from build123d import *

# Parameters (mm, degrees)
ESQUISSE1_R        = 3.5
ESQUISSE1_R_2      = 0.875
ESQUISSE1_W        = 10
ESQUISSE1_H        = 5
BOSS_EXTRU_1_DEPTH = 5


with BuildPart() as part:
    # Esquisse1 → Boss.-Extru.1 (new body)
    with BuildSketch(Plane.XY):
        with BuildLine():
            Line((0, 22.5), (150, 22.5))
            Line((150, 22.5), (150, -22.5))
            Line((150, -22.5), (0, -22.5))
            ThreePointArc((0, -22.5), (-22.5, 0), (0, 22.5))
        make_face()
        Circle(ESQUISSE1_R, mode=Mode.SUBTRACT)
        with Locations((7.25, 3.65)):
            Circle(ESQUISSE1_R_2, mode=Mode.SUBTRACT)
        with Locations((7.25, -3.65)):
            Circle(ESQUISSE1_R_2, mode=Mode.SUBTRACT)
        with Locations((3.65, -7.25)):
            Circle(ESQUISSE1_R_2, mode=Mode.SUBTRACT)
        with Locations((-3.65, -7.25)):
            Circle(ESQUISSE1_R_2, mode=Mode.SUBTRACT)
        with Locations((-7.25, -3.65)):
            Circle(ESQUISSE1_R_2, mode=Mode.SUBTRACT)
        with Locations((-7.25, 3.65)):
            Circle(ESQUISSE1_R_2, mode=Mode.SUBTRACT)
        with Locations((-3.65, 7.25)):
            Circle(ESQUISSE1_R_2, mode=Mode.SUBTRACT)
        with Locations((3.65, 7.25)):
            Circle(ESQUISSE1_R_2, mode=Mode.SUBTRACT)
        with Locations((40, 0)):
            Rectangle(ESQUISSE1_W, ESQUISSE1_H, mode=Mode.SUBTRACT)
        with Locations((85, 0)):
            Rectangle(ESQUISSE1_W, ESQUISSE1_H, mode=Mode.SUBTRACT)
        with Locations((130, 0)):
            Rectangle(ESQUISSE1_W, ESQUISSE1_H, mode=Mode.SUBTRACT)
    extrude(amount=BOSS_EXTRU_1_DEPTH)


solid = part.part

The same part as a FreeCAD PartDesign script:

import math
import FreeCAD as App
import Part
import Sketcher
Q = App.Units.Quantity

doc = App.newDocument("Part")
body = doc.addObject("PartDesign::Body", "Body")

# Sketch on XY plane
sketch1 = doc.addObject("Sketcher::SketchObject", "Sketch")
body.addObject(sketch1)
sketch1.AttachmentSupport = (doc.XY_Plane, [""])
sketch1.MapMode = "FlatFace"
sketch1.addGeometry([
    Part.LineSegment(App.Vector(150, 22.5, 0), App.Vector(0, 22.5, 0)),  # 0
    Part.ArcOfCircle(Part.Circle(App.Vector(0, 0, 0), App.Vector(0, 0, 1), 22.5), math.radians(90), math.radians(270)),  # 1
    Part.LineSegment(App.Vector(0, -22.5, 0), App.Vector(150, -22.5, 0)),  # 2
    Part.LineSegment(App.Vector(150, -22.5, 0), App.Vector(150, 22.5, 0)),  # 3
    Part.Circle(App.Vector(3.65, -7.25, 0), App.Vector(0, 0, 1), 0.875),  # 4
    Part.Circle(App.Vector(-3.65, -7.25, 0), App.Vector(0, 0, 1), 0.875),  # 5
    Part.Circle(App.Vector(7.25, -3.65, 0), App.Vector(0, 0, 1), 0.875),  # 6
    Part.Circle(App.Vector(-7.25, -3.65, 0), App.Vector(0, 0, 1), 0.875),  # 7
    Part.LineSegment(App.Vector(125, -2.5, 0), App.Vector(125, 2.5, 0)),  # 8
    Part.LineSegment(App.Vector(125, 2.5, 0), App.Vector(135, 2.5, 0)),  # 9
    Part.LineSegment(App.Vector(135, 2.5, 0), App.Vector(135, -2.5, 0)),  # 10
    Part.LineSegment(App.Vector(135, -2.5, 0), App.Vector(125, -2.5, 0)),  # 11
    Part.LineSegment(App.Vector(80, -2.5, 0), App.Vector(80, 2.5, 0)),  # 12
    Part.LineSegment(App.Vector(80, 2.5, 0), App.Vector(90, 2.5, 0)),  # 13
    Part.LineSegment(App.Vector(90, 2.5, 0), App.Vector(90, -2.5, 0)),  # 14
    Part.LineSegment(App.Vector(90, -2.5, 0), App.Vector(80, -2.5, 0)),  # 15
    Part.LineSegment(App.Vector(35, -2.5, 0), App.Vector(35, 2.5, 0)),  # 16
    Part.LineSegment(App.Vector(35, 2.5, 0), App.Vector(45, 2.5, 0)),  # 17
    Part.LineSegment(App.Vector(45, 2.5, 0), App.Vector(45, -2.5, 0)),  # 18
    Part.LineSegment(App.Vector(45, -2.5, 0), App.Vector(35, -2.5, 0)),  # 19
    Part.Circle(App.Vector(0, 0, 0), App.Vector(0, 0, 1), 3.5),  # 20
    Part.Circle(App.Vector(7.25, 3.65, 0), App.Vector(0, 0, 1), 0.875),  # 21
    Part.Circle(App.Vector(-7.25, 3.65, 0), App.Vector(0, 0, 1), 0.875),  # 22
    Part.Circle(App.Vector(3.65, 7.25, 0), App.Vector(0, 0, 1), 0.875),  # 23
    Part.Circle(App.Vector(-3.65, 7.25, 0), App.Vector(0, 0, 1), 0.875),  # 24
], False)
sketch1.addConstraint([
    Sketcher.Constraint("Tangent", 0, 2, 1, 1),
    Sketcher.Constraint("Tangent", 1, 2, 2, 1),
    Sketcher.Constraint("Coincident", 2, 2, 3, 1),
    Sketcher.Constraint("Coincident", 3, 2, 0, 1),
    Sketcher.Constraint("Coincident", 8, 2, 9, 1),
    Sketcher.Constraint("Coincident", 9, 2, 10, 1),
    Sketcher.Constraint("Coincident", 10, 2, 11, 1),
    Sketcher.Constraint("Coincident", 11, 2, 8, 1),
    Sketcher.Constraint("Coincident", 12, 2, 13, 1),
    Sketcher.Constraint("Coincident", 13, 2, 14, 1),
    Sketcher.Constraint("Coincident", 14, 2, 15, 1),
    Sketcher.Constraint("Coincident", 15, 2, 12, 1),
    Sketcher.Constraint("Coincident", 16, 2, 17, 1),
    Sketcher.Constraint("Coincident", 17, 2, 18, 1),
    Sketcher.Constraint("Coincident", 18, 2, 19, 1),
    Sketcher.Constraint("Coincident", 19, 2, 16, 1),
    Sketcher.Constraint("Horizontal", 0),
    Sketcher.Constraint("Horizontal", 2),
    Sketcher.Constraint("Vertical", 3),
    Sketcher.Constraint("Vertical", 8),
    Sketcher.Constraint("Horizontal", 9),
    Sketcher.Constraint("Vertical", 10),
    Sketcher.Constraint("Horizontal", 11),
    Sketcher.Constraint("Vertical", 12),
    Sketcher.Constraint("Horizontal", 13),
    Sketcher.Constraint("Vertical", 14),
    Sketcher.Constraint("Horizontal", 15),
    Sketcher.Constraint("Vertical", 16),
    Sketcher.Constraint("Horizontal", 17),
    Sketcher.Constraint("Vertical", 18),
    Sketcher.Constraint("Horizontal", 19),
    Sketcher.Constraint("Coincident", 1, 3, -1, 1),
    Sketcher.Constraint("Coincident", 20, 3, -1, 1),
    Sketcher.Constraint("Equal", 4, 5),
    Sketcher.Constraint("Equal", 5, 6),
    Sketcher.Constraint("Equal", 6, 7),
    Sketcher.Constraint("Equal", 7, 21),
    Sketcher.Constraint("Equal", 21, 22),
    Sketcher.Constraint("Equal", 22, 23),
    Sketcher.Constraint("Equal", 23, 24),
    Sketcher.Constraint("Symmetric", 7, 3, 21, 3, -1, 1),
    Sketcher.Constraint("Symmetric", 6, 3, 22, 3, -1, 1),
    Sketcher.Constraint("Symmetric", 5, 3, 23, 3, -1, 1),
    Sketcher.Constraint("Symmetric", 4, 3, 24, 3, -1, 1),
    Sketcher.Constraint("Symmetric", 4, 3, 5, 3, -2),
    Sketcher.Constraint("Symmetric", 6, 3, 7, 3, -2),
    Sketcher.Constraint("Horizontal", 9, 2, 12, 2),
    Sketcher.Constraint("Horizontal", 11, 2, 14, 2),
    Sketcher.Constraint("Horizontal", 13, 2, 16, 2),
    Sketcher.Constraint("Horizontal", 15, 2, 18, 2),
    Sketcher.Constraint("Equal", 11, 13),
    Sketcher.Constraint("Equal", 15, 17),
    Sketcher.Constraint("Diameter", 20, Q("7 mm")),
    Sketcher.Constraint("Radius", 1, Q("22.5 mm")),
    Sketcher.Constraint("Diameter", 4, Q("1.75 mm")),
    Sketcher.Constraint("DistanceX", 0, 2, 0, 1, Q("150 mm")),
    Sketcher.Constraint("DistanceX", 9, 1, 9, 2, Q("10 mm")),
    Sketcher.Constraint("DistanceY", 8, 1, 8, 2, Q("5 mm")),
    Sketcher.Constraint("DistanceX", -1, 1, 8, 2, Q("125 mm")),
    Sketcher.Constraint("DistanceX", -1, 1, 12, 2, Q("80 mm")),
    Sketcher.Constraint("DistanceX", -1, 1, 16, 2, Q("35 mm")),
    Sketcher.Constraint("DistanceY", 8, 2, 3, 2, Q("20 mm")),
    Sketcher.Constraint("DistanceX", 5, 3, 4, 3, Q("7.3 mm")),
    Sketcher.Constraint("DistanceX", 4, 3, 6, 3, Q("3.6 mm")),
    Sketcher.Constraint("DistanceY", 4, 3, 6, 3, Q("3.6 mm")),
    Sketcher.Constraint("DistanceY", 6, 3, 21, 3, Q("7.3 mm")),
])
pad1 = doc.addObject("PartDesign::Pad", "Pad")
body.addObject(pad1)
pad1.Profile = sketch1
pad1.Length = 5

doc.recompute()
